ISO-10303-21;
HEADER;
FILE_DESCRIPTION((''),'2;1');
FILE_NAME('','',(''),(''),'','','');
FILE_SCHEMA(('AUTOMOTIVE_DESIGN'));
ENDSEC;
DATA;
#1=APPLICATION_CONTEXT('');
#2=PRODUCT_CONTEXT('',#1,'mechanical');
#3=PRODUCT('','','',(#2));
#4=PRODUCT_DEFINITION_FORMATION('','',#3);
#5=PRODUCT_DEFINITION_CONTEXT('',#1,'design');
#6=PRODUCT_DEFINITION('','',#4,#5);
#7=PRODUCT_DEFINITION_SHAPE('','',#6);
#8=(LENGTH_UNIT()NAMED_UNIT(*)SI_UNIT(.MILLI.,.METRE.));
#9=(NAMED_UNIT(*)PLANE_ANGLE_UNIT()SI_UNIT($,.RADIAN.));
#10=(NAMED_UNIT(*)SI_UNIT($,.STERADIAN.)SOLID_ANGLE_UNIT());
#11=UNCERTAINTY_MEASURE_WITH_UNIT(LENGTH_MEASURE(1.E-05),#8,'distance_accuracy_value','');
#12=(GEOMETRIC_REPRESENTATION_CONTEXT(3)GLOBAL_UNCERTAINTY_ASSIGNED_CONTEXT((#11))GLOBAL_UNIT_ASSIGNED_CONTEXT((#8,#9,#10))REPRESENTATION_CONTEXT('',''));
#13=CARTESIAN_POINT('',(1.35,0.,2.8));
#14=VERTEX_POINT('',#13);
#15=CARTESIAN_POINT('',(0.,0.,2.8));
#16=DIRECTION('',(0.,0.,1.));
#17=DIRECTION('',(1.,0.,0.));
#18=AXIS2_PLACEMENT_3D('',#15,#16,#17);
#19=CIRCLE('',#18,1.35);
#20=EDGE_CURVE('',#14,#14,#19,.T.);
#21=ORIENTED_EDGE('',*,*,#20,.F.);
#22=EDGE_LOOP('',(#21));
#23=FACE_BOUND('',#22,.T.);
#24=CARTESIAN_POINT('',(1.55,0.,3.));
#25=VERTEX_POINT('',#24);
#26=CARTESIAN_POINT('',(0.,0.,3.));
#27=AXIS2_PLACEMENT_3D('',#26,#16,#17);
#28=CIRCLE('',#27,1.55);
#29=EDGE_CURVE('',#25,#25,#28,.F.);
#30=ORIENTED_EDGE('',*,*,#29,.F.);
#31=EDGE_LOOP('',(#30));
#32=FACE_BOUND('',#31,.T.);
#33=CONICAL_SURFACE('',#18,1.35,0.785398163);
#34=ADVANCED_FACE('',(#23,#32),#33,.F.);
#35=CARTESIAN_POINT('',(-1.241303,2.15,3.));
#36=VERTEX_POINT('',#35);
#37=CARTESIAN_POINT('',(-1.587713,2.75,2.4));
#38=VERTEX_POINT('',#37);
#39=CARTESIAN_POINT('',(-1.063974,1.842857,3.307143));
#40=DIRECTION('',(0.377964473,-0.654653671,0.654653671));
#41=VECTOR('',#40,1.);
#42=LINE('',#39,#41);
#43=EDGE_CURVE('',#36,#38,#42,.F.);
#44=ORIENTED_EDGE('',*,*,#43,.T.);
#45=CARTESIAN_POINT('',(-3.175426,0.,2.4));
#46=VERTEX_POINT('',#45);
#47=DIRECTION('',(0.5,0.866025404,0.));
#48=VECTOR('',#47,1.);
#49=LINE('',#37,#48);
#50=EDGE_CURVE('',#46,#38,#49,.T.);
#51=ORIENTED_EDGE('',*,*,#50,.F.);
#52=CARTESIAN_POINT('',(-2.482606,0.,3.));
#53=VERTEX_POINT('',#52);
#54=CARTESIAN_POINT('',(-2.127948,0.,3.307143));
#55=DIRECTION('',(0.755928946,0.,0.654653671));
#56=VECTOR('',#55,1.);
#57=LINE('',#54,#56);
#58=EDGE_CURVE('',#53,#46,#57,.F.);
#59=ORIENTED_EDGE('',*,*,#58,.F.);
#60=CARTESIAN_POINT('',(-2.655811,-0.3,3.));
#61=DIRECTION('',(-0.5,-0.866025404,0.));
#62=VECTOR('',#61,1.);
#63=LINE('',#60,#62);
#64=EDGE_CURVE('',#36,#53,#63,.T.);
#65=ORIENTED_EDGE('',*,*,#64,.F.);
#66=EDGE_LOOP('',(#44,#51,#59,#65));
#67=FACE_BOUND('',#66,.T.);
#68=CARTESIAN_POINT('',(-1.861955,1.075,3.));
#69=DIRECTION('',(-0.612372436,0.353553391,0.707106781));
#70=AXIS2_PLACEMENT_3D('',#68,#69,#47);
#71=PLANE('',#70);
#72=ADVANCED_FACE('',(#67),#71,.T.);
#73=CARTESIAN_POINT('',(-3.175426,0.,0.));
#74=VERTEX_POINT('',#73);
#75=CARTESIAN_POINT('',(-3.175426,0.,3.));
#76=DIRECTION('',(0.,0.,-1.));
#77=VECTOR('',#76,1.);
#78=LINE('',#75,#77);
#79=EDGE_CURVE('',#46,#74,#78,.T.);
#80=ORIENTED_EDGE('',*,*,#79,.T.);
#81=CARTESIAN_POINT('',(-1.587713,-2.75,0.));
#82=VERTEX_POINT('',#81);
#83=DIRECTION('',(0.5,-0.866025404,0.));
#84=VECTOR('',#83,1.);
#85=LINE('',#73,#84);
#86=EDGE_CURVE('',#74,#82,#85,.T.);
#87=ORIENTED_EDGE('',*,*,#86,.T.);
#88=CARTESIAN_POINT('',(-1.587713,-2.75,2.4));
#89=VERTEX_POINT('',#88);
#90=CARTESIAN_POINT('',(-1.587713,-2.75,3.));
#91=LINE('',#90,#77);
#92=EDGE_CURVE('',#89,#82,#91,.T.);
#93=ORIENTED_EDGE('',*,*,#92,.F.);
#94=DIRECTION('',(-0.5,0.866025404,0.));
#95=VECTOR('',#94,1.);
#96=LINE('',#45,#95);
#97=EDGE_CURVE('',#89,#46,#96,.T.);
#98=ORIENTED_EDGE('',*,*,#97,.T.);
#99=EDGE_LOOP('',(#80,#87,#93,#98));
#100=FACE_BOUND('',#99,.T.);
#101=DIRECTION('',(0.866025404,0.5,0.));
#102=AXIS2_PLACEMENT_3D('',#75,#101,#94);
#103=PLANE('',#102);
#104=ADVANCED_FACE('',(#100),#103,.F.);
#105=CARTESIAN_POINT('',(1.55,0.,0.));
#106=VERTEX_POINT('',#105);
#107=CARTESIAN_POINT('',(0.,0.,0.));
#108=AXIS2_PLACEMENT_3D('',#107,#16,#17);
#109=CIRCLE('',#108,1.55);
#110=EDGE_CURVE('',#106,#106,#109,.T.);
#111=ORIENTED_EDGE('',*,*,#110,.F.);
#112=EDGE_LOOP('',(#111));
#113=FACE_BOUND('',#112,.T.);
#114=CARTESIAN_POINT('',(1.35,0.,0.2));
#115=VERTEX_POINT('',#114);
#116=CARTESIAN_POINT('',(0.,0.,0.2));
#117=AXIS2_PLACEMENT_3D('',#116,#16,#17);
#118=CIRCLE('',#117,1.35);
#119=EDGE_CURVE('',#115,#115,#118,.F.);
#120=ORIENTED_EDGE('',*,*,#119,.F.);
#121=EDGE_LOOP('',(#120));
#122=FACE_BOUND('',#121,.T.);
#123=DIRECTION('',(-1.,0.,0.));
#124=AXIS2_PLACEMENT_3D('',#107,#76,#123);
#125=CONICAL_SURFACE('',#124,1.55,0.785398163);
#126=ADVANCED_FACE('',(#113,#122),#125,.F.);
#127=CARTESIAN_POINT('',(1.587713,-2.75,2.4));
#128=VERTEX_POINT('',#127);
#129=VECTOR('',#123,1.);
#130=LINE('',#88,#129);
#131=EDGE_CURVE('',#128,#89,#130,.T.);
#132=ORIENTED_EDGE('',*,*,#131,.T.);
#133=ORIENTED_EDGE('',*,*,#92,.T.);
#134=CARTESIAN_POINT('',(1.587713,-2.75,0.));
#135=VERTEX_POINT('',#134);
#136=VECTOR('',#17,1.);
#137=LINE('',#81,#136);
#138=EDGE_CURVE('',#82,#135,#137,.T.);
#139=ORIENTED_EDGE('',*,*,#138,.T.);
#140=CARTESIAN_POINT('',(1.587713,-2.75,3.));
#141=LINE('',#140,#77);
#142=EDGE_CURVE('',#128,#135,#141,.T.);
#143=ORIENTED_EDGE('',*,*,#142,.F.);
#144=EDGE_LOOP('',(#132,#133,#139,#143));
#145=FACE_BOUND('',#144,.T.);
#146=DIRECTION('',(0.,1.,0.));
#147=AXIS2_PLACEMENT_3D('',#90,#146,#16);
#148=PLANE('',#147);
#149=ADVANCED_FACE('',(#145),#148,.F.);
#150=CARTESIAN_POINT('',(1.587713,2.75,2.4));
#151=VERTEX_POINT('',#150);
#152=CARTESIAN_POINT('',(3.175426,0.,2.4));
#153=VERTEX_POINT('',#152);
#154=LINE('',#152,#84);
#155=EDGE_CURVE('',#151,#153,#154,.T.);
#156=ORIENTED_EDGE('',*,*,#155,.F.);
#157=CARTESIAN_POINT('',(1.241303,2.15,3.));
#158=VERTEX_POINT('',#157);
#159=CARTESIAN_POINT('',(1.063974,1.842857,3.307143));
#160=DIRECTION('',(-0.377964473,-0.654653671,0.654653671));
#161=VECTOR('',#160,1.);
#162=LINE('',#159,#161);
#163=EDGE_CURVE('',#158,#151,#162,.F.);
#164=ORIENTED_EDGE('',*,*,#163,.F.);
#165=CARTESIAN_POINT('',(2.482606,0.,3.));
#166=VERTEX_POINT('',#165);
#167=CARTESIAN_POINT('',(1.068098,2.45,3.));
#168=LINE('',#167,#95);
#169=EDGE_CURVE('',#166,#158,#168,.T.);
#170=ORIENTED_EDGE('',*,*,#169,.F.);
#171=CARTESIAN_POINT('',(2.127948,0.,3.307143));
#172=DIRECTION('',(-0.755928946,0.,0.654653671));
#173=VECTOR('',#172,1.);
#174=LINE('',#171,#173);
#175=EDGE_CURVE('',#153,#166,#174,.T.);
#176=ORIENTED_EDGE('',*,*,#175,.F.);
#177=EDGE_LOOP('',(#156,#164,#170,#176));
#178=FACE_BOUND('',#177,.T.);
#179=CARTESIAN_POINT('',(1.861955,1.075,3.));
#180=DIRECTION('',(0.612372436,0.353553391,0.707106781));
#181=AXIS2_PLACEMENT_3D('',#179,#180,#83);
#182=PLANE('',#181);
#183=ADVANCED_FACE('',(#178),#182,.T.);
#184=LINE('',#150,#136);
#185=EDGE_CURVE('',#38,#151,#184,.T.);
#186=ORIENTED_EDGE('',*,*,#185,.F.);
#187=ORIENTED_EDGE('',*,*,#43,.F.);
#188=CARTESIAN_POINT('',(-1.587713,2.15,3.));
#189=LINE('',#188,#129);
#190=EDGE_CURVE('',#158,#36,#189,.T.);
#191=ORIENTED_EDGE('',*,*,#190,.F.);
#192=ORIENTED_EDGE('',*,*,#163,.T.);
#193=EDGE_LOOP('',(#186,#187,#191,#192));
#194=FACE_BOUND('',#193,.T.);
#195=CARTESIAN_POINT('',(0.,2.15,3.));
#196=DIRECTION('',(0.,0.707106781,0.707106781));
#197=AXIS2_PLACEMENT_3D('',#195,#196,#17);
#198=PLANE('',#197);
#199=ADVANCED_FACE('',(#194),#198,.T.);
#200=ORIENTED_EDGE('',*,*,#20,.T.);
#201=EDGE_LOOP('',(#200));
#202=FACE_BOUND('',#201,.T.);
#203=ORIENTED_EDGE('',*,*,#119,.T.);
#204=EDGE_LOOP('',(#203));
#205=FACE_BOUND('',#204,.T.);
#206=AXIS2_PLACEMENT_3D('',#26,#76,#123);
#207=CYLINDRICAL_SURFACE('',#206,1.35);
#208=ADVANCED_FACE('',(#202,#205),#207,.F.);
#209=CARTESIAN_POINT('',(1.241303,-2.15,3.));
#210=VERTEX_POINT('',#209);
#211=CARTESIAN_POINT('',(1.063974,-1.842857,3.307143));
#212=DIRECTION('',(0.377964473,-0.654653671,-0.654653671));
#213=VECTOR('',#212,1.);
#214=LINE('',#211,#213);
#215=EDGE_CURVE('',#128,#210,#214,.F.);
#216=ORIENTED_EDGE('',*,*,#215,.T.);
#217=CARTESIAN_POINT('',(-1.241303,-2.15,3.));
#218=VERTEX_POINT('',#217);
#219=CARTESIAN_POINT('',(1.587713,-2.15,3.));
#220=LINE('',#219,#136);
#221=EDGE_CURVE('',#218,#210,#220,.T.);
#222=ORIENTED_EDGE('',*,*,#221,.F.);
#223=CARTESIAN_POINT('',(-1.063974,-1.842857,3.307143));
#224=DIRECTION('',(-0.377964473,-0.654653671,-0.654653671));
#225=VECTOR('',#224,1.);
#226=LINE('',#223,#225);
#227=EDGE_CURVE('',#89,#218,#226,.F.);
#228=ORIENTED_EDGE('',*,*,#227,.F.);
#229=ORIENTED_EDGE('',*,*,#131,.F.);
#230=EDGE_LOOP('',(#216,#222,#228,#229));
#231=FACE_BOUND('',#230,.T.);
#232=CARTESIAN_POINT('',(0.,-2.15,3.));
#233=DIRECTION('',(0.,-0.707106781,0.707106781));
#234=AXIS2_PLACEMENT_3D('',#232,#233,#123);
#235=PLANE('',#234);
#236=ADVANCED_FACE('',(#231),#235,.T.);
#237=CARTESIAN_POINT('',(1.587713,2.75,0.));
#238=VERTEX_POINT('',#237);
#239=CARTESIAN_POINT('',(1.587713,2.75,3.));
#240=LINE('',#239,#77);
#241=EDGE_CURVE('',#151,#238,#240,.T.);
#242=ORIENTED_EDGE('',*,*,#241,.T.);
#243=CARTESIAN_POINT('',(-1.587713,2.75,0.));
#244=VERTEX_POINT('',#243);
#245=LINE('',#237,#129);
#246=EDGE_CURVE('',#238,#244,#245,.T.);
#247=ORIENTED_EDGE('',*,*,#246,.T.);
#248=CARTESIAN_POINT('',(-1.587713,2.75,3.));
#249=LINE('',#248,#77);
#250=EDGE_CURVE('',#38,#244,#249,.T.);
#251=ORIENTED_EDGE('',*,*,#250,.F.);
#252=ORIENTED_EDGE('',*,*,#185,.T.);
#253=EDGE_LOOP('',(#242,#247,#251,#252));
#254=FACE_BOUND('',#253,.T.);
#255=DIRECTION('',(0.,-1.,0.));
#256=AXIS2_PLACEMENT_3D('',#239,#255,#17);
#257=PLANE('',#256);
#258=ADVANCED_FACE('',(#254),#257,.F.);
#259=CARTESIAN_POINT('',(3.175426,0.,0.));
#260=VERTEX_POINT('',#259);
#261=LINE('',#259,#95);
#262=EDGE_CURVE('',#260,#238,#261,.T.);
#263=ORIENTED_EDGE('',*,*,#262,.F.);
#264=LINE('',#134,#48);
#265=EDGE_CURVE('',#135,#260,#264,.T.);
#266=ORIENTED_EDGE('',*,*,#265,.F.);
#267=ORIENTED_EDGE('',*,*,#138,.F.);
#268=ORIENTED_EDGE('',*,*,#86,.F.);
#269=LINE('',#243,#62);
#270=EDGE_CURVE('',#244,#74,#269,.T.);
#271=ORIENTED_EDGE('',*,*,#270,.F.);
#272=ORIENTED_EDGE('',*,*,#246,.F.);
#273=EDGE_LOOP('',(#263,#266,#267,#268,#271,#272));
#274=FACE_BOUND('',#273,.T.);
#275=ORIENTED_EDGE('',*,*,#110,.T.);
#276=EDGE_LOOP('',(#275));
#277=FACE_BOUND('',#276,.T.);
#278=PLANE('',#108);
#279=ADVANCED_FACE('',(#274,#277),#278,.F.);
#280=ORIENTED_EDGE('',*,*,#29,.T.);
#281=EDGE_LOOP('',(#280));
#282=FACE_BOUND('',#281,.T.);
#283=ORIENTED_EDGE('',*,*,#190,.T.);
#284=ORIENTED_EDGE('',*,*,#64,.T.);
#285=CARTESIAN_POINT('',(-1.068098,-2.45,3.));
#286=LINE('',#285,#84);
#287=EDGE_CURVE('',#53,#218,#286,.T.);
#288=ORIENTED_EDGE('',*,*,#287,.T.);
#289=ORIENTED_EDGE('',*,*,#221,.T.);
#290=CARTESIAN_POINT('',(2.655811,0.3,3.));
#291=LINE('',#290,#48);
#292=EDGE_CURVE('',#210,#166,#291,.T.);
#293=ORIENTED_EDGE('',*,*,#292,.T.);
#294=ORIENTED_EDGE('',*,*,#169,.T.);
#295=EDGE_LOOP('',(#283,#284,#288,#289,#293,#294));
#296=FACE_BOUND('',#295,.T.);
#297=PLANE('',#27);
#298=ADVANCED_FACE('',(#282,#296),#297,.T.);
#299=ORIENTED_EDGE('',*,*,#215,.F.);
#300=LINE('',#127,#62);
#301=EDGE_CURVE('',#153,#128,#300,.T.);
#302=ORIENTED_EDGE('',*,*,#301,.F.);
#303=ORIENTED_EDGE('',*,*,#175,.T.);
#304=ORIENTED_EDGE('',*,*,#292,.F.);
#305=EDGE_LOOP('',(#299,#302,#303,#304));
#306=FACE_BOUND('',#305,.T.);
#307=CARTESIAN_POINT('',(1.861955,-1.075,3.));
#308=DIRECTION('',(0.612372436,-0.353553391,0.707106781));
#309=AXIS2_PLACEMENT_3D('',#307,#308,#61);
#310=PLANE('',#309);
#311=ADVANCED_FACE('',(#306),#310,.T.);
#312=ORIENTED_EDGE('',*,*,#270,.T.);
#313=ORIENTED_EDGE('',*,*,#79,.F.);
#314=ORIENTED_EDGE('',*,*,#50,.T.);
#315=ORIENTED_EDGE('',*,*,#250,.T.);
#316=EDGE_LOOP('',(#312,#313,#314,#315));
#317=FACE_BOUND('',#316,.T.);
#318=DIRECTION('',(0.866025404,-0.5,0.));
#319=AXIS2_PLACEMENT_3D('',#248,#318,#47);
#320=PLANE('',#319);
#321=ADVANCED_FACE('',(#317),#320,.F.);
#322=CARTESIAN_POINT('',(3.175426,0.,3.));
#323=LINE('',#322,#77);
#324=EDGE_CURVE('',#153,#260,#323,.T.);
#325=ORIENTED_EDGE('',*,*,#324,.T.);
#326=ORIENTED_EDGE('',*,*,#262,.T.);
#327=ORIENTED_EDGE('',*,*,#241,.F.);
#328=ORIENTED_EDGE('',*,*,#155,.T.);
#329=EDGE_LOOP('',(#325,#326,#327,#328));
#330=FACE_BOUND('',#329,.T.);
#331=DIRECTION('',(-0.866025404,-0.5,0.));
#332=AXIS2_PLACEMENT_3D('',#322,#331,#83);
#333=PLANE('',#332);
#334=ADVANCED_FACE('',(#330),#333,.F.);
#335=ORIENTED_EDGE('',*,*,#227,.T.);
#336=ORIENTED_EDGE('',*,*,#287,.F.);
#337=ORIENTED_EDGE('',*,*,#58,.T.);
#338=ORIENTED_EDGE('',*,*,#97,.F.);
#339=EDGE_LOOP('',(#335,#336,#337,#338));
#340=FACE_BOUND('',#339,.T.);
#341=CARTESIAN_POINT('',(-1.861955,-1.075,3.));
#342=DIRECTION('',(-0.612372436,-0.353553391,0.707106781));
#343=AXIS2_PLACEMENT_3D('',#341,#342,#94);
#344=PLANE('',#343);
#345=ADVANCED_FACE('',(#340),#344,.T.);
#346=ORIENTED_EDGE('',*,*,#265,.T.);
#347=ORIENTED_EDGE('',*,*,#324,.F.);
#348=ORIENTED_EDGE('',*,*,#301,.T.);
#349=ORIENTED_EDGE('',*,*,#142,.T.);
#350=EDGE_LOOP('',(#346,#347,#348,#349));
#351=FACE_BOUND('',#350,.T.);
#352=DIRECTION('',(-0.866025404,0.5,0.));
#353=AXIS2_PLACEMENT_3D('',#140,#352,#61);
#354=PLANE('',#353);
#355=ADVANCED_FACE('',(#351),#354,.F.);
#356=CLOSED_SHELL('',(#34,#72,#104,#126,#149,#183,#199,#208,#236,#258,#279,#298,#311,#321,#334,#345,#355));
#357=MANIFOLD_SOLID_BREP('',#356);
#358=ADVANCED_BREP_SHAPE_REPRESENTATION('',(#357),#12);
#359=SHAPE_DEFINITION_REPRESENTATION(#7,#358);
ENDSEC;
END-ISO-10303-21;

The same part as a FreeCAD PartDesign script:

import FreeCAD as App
import Part
import Sketcher
Q = App.Units.Quantity


def edges_at(feature, points):
    """Names of the edges that pass closest to the given points."""
    edges = feature.Shape.Edges
    near = lambda p: min(range(len(edges)), key=lambda i: edges[i].distToShape(Part.Vertex(*p))[0])
    return sorted({f"Edge{near(p) + 1}" for p in points})

doc = App.newDocument("Part")
body = doc.addObject("PartDesign::Body", "Body")

# Sketch on XY plane
sketch1 = doc.addObject("Sketcher::SketchObject", "Sketch")
body.addObject(sketch1)
sketch1.AttachmentSupport = (doc.XY_Plane, [""])
sketch1.MapMode = "FlatFace"
sketch1.addGeometry(Part.LineSegment(App.Vector(3.2, 0, 0), App.Vector(1.6, 2.8, 0)), False)
sketch1.addGeometry(Part.LineSegment(App.Vector(1.6, 2.8, 0), App.Vector(-1.6, 2.8, 0)), False)
sketch1.addGeometry(Part.LineSegment(App.Vector(-1.6, 2.8, 0), App.Vector(-3.2, 0, 0)), False)
sketch1.addGeometry(Part.LineSegment(App.Vector(-3.2, 0, 0), App.Vector(-1.6, -2.8, 0)), False)
sketch1.addGeometry(Part.LineSegment(App.Vector(-1.6, -2.8, 0), App.Vector(1.6, -2.8, 0)), False)
sketch1.addGeometry(Part.LineSegment(App.Vector(1.6, -2.8, 0), App.Vector(3.2, 0, 0)), False)
sketch1.addGeometry(Part.Circle(App.Vector(0, 0, 0), App.Vector(0, 0, 1), 1.4), False)
sketch1.addConstraint(Sketcher.Constraint("Coincident", 0, 2, 1, 1))
sketch1.addConstraint(Sketcher.Constraint("Coincident", 1, 2, 2, 1))
sketch1.addConstraint(Sketcher.Constraint("Coincident", 2, 2, 3, 1))
sketch1.addConstraint(Sketcher.Constraint("Coincident", 3, 2, 4, 1))
sketch1.addConstraint(Sketcher.Constraint("Coincident", 4, 2, 5, 1))
sketch1.addConstraint(Sketcher.Constraint("Coincident", 5, 2, 0, 1))
sketch1.addConstraint(Sketcher.Constraint("Horizontal", 1))
sketch1.addConstraint(Sketcher.Constraint("Horizontal", 4))
sketch1.addConstraint(Sketcher.Constraint("Coincident", 6, 3, -1, 1))
sketch1.addConstraint(Sketcher.Constraint("Symmetric", 0, 2, 3, 2, -1, 1))
sketch1.addConstraint(Sketcher.Constraint("Symmetric", 2, 2, 5, 2, -1, 1))
sketch1.addConstraint(Sketcher.Constraint("PointOnObject", 2, 2, -1))
sketch1.addConstraint(Sketcher.Constraint("Parallel", 2, 5))
sketch1.addConstraint(Sketcher.Constraint("Vertical", 1, 2, 3, 2))
sketch1.addConstraint(Sketcher.Constraint("Diameter", 6, Q("2.7 mm")))
sketch1.addConstraint(Sketcher.Constraint("Angle", 0, Q("120 deg")))
sketch1.addConstraint(Sketcher.Constraint("DistanceY", 3, 2, 1, 2, Q("5.5 mm")))
sketch1.addConstraint(Sketcher.Constraint("DistanceX", 1, 2, 1, 1, Q("3.175426 mm")))
pad1 = doc.addObject("PartDesign::Pad", "Pad")
body.addObject(pad1)
pad1.Profile = sketch1
pad1.Length = 3
doc.recompute()

chamfer = doc.addObject("PartDesign::Chamfer", "Chamfer")
body.addObject(chamfer)
chamfer.Base = (pad1, edges_at(pad1, [
    (0, 2.75, 3),
    (-2.382, 1.375, 3),
    (-2.382, -1.375, 3),
    (0, -2.75, 3),
    (2.382, -1.375, 3),
    (2.382, 1.375, 3),
]))
chamfer.Size = 0.6
doc.recompute()

chamfer2 = doc.addObject("PartDesign::Chamfer", "Chamfer001")
body.addObject(chamfer2)
chamfer2.Base = (chamfer, edges_at(chamfer, [(-1.35, 0, 0), (-1.35, 0, 3)]))
chamfer2.Size = 0.2

doc.recompute()
